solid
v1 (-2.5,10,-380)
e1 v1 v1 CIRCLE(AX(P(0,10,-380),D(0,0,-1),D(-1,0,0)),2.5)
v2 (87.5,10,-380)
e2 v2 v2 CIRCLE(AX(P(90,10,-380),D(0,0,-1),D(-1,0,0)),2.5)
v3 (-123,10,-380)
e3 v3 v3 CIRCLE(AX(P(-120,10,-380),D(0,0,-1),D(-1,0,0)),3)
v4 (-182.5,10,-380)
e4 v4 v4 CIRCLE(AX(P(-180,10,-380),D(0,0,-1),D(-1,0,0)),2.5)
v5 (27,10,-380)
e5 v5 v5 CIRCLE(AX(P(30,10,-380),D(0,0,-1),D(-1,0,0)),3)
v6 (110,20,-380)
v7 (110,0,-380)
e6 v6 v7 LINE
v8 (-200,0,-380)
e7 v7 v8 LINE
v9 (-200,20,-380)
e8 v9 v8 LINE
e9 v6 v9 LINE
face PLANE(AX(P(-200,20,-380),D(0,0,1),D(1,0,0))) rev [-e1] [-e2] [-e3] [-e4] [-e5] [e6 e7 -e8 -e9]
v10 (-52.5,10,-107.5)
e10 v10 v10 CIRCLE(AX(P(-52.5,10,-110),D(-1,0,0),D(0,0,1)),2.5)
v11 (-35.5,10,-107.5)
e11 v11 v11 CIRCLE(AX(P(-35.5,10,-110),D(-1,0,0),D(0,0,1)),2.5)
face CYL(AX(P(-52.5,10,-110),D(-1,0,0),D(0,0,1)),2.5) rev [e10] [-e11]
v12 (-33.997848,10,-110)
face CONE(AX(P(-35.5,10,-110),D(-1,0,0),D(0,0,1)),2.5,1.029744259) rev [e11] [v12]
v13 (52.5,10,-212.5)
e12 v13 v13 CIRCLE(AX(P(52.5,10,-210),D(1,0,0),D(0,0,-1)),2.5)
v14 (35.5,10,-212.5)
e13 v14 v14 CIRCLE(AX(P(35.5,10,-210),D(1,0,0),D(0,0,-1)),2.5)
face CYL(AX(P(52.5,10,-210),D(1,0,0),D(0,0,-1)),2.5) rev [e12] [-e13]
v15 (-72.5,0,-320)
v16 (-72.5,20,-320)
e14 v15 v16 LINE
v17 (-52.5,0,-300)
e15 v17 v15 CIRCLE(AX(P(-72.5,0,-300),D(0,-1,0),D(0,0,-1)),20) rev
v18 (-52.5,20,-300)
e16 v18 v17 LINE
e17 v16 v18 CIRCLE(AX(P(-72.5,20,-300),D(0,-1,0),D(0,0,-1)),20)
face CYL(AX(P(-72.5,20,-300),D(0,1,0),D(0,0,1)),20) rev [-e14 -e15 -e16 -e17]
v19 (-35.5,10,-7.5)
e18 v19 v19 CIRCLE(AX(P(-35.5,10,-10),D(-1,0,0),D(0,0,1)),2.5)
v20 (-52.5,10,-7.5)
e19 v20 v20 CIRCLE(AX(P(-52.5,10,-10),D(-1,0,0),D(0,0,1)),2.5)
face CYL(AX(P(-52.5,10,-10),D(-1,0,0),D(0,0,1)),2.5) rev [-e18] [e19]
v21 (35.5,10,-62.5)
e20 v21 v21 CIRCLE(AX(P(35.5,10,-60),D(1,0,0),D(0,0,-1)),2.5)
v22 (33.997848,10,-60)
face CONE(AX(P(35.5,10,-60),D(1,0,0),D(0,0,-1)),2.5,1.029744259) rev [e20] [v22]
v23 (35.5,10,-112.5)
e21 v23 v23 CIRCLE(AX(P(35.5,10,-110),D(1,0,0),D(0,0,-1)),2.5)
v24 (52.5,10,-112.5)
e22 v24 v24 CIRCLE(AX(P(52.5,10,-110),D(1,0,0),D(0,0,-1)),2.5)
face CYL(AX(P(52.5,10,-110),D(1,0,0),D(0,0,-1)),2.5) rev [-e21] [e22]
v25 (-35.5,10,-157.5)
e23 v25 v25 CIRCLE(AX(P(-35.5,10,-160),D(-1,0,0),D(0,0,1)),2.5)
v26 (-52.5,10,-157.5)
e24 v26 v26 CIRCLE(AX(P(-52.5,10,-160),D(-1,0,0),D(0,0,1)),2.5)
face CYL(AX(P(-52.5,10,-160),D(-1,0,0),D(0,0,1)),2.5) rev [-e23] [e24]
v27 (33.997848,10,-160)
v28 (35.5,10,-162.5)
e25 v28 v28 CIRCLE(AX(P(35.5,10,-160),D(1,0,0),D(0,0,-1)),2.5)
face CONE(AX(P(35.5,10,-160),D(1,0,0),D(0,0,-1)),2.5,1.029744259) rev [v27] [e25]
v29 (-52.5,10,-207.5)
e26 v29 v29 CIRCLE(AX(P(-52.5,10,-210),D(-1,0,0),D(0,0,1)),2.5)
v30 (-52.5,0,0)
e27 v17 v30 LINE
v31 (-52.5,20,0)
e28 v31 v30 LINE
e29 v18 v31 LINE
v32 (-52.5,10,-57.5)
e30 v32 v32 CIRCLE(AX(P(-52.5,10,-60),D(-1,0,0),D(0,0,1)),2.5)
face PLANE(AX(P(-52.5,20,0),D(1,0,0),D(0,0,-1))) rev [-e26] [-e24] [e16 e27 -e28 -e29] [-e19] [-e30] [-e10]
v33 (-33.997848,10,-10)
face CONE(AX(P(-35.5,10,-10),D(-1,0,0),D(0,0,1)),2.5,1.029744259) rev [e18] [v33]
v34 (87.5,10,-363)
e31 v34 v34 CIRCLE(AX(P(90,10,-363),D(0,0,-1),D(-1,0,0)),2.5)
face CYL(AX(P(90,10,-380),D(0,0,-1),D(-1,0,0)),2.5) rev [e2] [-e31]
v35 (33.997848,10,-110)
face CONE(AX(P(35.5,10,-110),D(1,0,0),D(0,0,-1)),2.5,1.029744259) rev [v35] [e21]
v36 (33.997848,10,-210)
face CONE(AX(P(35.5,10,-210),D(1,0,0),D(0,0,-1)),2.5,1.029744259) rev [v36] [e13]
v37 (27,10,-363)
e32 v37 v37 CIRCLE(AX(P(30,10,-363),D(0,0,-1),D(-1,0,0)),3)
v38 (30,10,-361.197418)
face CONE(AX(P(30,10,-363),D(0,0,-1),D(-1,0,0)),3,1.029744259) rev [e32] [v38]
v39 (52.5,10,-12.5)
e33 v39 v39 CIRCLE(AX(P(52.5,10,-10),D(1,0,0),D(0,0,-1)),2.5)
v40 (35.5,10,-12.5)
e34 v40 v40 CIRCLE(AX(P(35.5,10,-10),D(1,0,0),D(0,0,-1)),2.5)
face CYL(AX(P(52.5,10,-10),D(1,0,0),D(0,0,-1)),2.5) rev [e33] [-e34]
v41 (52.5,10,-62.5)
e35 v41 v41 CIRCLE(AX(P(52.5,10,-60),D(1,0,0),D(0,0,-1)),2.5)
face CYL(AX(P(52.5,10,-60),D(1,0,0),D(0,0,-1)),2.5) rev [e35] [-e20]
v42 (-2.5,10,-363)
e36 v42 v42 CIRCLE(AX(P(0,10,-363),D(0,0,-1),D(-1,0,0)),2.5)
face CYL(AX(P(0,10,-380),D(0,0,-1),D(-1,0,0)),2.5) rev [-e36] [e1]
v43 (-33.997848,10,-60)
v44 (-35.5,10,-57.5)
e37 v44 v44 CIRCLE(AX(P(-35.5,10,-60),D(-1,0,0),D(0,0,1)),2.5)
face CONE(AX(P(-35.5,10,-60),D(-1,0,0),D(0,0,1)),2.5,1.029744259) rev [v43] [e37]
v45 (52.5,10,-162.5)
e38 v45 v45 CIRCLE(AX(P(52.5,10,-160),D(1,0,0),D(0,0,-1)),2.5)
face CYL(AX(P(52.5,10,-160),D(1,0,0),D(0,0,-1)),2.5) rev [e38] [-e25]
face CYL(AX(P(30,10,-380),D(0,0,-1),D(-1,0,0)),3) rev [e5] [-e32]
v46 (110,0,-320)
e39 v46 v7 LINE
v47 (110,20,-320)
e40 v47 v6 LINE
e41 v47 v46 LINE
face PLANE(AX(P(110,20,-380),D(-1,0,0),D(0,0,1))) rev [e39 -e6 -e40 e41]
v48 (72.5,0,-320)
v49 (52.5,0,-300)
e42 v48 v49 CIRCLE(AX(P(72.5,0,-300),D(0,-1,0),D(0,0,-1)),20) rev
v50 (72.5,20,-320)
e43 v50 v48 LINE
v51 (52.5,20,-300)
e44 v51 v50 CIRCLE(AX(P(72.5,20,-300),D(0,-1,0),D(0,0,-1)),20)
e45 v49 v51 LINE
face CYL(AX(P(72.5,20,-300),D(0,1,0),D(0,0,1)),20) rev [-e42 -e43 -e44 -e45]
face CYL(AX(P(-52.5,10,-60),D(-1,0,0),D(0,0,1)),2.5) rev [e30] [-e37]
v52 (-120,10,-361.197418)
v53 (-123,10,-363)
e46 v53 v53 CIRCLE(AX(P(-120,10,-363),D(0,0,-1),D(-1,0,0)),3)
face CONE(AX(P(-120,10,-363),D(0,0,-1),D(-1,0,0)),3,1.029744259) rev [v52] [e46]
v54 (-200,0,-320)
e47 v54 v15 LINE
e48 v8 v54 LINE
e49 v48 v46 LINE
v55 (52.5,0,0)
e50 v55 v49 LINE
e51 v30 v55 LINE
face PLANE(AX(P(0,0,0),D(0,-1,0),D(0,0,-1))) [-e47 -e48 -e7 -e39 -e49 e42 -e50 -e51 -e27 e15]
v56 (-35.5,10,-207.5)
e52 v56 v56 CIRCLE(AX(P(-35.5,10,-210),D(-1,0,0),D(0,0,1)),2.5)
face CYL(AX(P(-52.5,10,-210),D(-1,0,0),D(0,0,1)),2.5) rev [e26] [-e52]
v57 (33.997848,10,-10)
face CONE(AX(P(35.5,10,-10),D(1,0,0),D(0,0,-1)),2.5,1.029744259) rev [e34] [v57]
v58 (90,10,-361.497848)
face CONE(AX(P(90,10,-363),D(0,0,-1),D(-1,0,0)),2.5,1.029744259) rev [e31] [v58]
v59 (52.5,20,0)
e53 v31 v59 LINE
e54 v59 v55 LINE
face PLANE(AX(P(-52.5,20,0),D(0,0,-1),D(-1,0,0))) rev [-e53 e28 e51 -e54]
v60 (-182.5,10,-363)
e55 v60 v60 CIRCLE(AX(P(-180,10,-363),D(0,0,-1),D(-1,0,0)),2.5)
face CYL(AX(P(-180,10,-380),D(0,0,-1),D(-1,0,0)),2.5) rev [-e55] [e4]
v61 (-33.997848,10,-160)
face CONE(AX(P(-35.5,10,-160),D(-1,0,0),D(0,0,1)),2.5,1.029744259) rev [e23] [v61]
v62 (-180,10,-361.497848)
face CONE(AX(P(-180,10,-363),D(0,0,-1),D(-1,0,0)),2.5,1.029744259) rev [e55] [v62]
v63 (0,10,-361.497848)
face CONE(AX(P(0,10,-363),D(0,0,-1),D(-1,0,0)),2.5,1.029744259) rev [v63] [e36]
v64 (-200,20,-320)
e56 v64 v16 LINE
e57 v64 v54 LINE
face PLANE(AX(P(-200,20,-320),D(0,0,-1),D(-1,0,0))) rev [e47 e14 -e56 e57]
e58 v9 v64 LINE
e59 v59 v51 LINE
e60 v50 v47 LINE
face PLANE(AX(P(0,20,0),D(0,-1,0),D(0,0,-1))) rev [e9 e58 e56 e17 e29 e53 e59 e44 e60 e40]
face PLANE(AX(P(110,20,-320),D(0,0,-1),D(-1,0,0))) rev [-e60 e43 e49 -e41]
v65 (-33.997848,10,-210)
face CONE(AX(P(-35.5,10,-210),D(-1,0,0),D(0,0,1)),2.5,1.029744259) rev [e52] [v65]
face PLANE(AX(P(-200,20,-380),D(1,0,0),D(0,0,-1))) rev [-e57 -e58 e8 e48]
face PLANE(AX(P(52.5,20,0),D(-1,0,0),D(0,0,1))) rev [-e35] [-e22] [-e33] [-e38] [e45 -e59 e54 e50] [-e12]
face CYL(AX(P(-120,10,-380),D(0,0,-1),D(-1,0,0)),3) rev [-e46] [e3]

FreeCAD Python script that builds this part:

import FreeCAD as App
import Part
import Sketcher

V = App.Vector
Q = App.Units.Quantity


def edges_at(feature, points):
    """Names of the edges that pass closest to the given points."""
    edges = feature.Shape.Edges
    near = lambda p: min(range(len(edges)), key=lambda i: edges[i].distToShape(Part.Vertex(*p))[0])
    return sorted({f"Edge{near(p) + 1}" for p in points})

doc = App.newDocument("Part")
body = doc.addObject("PartDesign::Body", "Body")

sketch1 = doc.addObject("Sketcher::SketchObject", "Sketch")
body.addObject(sketch1)
sketch1.AttachmentSupport = (doc.XZ_Plane, [""])
sketch1.MapMode = "FlatFace"
sketch1.addGeometry([
    Part.LineSegment(V(-52, 0, 0), V(52, 0, 0)),
    Part.LineSegment(V(52, 0, 0), V(52, -320, 0)),
    Part.LineSegment(V(52, -320, 0), V(110, -320, 0)),
    Part.LineSegment(V(110, -320, 0), V(110, -380, 0)),
    Part.LineSegment(V(110, -380, 0), V(-200, -380, 0)),
    Part.LineSegment(V(-200, -380, 0), V(-200, -320, 0)),
    Part.LineSegment(V(-200, -320, 0), V(-52, -320, 0)),
    Part.LineSegment(V(-52, -320, 0), V(-52, 0, 0)),
], False)
sketch1.addConstraint([
    Sketcher.Constraint("Coincident", 0, 2, 1, 1),
    Sketcher.Constraint("Coincident", 1, 2, 2, 1),
    Sketcher.Constraint("Coincident", 2, 2, 3, 1),
    Sketcher.Constraint("Coincident", 3, 2, 4, 1),
    Sketcher.Constraint("Coincident", 4, 2, 5, 1),
    Sketcher.Constraint("Coincident", 5, 2, 6, 1),
    Sketcher.Constraint("Coincident", 6, 2, 7, 1),
    Sketcher.Constraint("Coincident", 7, 2, 0, 1),
    Sketcher.Constraint("Horizontal", 0),
    Sketcher.Constraint("Vertical", 1),
    Sketcher.Constraint("Horizontal", 2),
    Sketcher.Constraint("Vertical", 3),
    Sketcher.Constraint("Horizontal", 4),
    Sketcher.Constraint("Vertical", 5),
    Sketcher.Constraint("Horizontal", 6),
    Sketcher.Constraint("Vertical", 7),
    Sketcher.Constraint("Symmetric", 0, 2, 7, 2, -1, 1),
    Sketcher.Constraint("Horizontal", 2, 2, 5, 2),
    Sketcher.Constraint("DistanceX", 0, 1, 0, 2, Q("105 mm")),
    Sketcher.Constraint("DistanceX", 4, 2, 4, 1, Q("310 mm")),
    Sketcher.Constraint("DistanceY", 1, 2, 1, 1, Q("320 mm")),
    Sketcher.Constraint("DistanceY", 3, 2, 3, 1, Q("60 mm")),
    Sketcher.Constraint("DistanceX", 2, 1, 2, 2, Q("57.5 mm")),
])
pad1 = doc.addObject("PartDesign::Pad", "Pad")
body.addObject(pad1)
pad1.Profile = sketch1
pad1.Length = 20
pad1.Reversed = True

sketch2 = doc.addObject("Sketcher::SketchObject", "Sketch001")
body.addObject(sketch2)
sketch2.AttachmentSupport = (doc.XZ_Plane, [""])
sketch2.MapMode = "FlatFace"
sketch2.AttachmentOffset = App.Placement(V(0, 0, -10), App.Rotation())
sketch2.addGeometry([
    Part.LineSegment(V(34, -10, 0), V(52.5, -10, 0)),
    Part.LineSegment(V(52.5, -10, 0), V(52.5, -12.5, 0)),
    Part.LineSegment(V(52.5, -12.5, 0), V(35.5, -12.5, 0)),
    Part.LineSegment(V(35.5, -12.5, 0), V(34, -10, 0)),
], False)
sketch2.addGeometry(Part.LineSegment(V(52.5, -10, 0), V(34, -10, 0)), True)
sketch2.addConstraint([
    Sketcher.Constraint("Coincident", 0, 2, 1, 1),
    Sketcher.Constraint("Coincident", 1, 2, 2, 1),
    Sketcher.Constraint("Coincident", 2, 2, 3, 1),
    Sketcher.Constraint("Coincident", 3, 2, 0, 1),
    Sketcher.Constraint("Horizontal", 0),
    Sketcher.Constraint("Vertical", 1),
    Sketcher.Constraint("Horizontal", 2),
    Sketcher.Constraint("Horizontal", 4),
    Sketcher.Constraint("Coincident", 4, 1, 0, 2),
    Sketcher.Constraint("Equal", 0, 4),
    Sketcher.Constraint("DistanceX", 2, 2, 2, 1, Q("17 mm")),
    Sketcher.Constraint("Angle", 3, Q("121 deg")),
    Sketcher.Constraint("DistanceY", 1, 2, 1, 1, Q("2.5 mm")),
    Sketcher.Constraint("DistanceY", 0, 2, -1, 1, Q("10 mm")),
    Sketcher.Constraint("DistanceX", -1, 1, 0, 2, Q("52.5 mm")),
])
groove = doc.addObject("PartDesign::Groove", "Groove")
body.addObject(groove)
groove.Profile = sketch2
groove.ReferenceAxis = (sketch2, ["Axis0"])
groove.Angle = 360
doc.recompute()

linearpattern = doc.addObject("PartDesign::LinearPattern", "LinearPattern")
body.addObject(linearpattern)
linearpattern.Originals = [groove]
linearpattern.Direction = (doc.Z_Axis, [""])
linearpattern.Mode = "offset"
linearpattern.Offset = 50
linearpattern.Occurrences = 2
linearpattern.Reversed = True
body.Tip = linearpattern
doc.recompute()

linearpattern2 = doc.addObject("PartDesign::LinearPattern", "LinearPattern001")
body.addObject(linearpattern2)
linearpattern2.Originals = [groove]
linearpattern2.Direction = (doc.Z_Axis, [""])
linearpattern2.Mode = "offset"
linearpattern2.Offset = 100
linearpattern2.Occurrences = 2
linearpattern2.Reversed = True
body.Tip = linearpattern2
doc.recompute()

linearpattern3 = doc.addObject("PartDesign::LinearPattern", "LinearPattern002")
body.addObject(linearpattern3)
linearpattern3.Originals = [groove]
linearpattern3.Direction = (doc.Z_Axis, [""])
linearpattern3.Mode = "offset"
linearpattern3.Offset = 150
linearpattern3.Occurrences = 2
linearpattern3.Reversed = True
body.Tip = linearpattern3
doc.recompute()

datumline = doc.addObject("PartDesign::Line", "DatumLine")
body.addObject(datumline)
datumline.Placement = App.Placement(V(0, 0, 0), App.Rotation(V(0, 0, 1), V(0, 0.242535625, -0.9701425)))
linearpattern4 = doc.addObject("PartDesign::LinearPattern", "LinearPattern003")
body.addObject(linearpattern4)
linearpattern4.Originals = [groove]
linearpattern4.Direction = (datumline, [""])
linearpattern4.Mode = "offset"
linearpattern4.Offset = 206.155281
linearpattern4.Occurrences = 2
body.Tip = linearpattern4
doc.recompute()

linearpattern5 = doc.addObject("PartDesign::LinearPattern", "LinearPattern004")
body.addObject(linearpattern5)
linearpattern5.Originals = [groove]
linearpattern5.Direction = (doc.Z_Axis, [""])
linearpattern5.Mode = "offset"
linearpattern5.Offset = 200
linearpattern5.Occurrences = 2
linearpattern5.Reversed = True
body.Tip = linearpattern5
doc.recompute()

mirrored = doc.addObject("PartDesign::Mirrored", "Mirrored")
body.addObject(mirrored)
mirrored.Originals = [groove]
mirrored.MirrorPlane = (doc.YZ_Plane, [""])
body.Tip = mirrored

sketch3 = doc.addObject("Sketcher::SketchObject", "Sketch002")
body.addObject(sketch3)
sketch3.AttachmentSupport = (doc.XZ_Plane, [""])
sketch3.MapMode = "FlatFace"
sketch3.AttachmentOffset = App.Placement(V(0, 0, -10), App.Rotation())
sketch3.addGeometry([
    Part.LineSegment(V(-52.5, -60, 0), V(-34, -60, 0)),
    Part.LineSegment(V(-34, -60, 0), V(-35.5, -62.5, 0)),
    Part.LineSegment(V(-35.5, -62.5, 0), V(-52.5, -62.5, 0)),
    Part.LineSegment(V(-52.5, -62.5, 0), V(-52.5, -60, 0)),
], False)
sketch3.addGeometry(Part.LineSegment(V(-34, -60, 0), V(-52.5, -60, 0)), True)
sketch3.addConstraint([
    Sketcher.Constraint("Coincident", 0, 2, 1, 1),
    Sketcher.Constraint("Coincident", 1, 2, 2, 1),
    Sketcher.Constraint("Coincident", 2, 2, 3, 1),
    Sketcher.Constraint("Coincident", 3, 2, 0, 1),
    Sketcher.Constraint("Horizontal", 0),
    Sketcher.Constraint("Horizontal", 2),
    Sketcher.Constraint("Vertical", 3),
    Sketcher.Constraint("Horizontal", 4),
    Sketcher.Constraint("Coincident", 4, 1, 0, 2),
    Sketcher.Constraint("Vertical", 2, 2, 4, 2),
    Sketcher.Constraint("DistanceX", 2, 2, 2, 1, Q("17 mm")),
    Sketcher.Constraint("Angle", 1, Q("-121 deg")),
    Sketcher.Constraint("DistanceY", 3, 1, 3, 2, Q("2.5 mm")),
    Sketcher.Constraint("DistanceY", 0, 2, -1, 1, Q("60 mm")),
    Sketcher.Constraint("DistanceX", 1, 2, -1, 1, Q("35.5 mm")),
])
groove2 = doc.addObject("PartDesign::Groove", "Groove001")
body.addObject(groove2)
groove2.Profile = sketch3
groove2.ReferenceAxis = (sketch3, ["Axis0"])
groove2.Angle = 360

sketch4 = doc.addObject("Sketcher::SketchObject", "Sketch003")
body.addObject(sketch4)
sketch4.AttachmentSupport = (doc.XZ_Plane, [""])
sketch4.MapMode = "FlatFace"
sketch4.AttachmentOffset = App.Placement(V(0, 0, -10), App.Rotation())
sketch4.addGeometry([
    Part.LineSegment(V(-52.5, -110, 0), V(-34, -110, 0)),
    Part.LineSegment(V(-34, -110, 0), V(-35.5, -112.5, 0)),
    Part.LineSegment(V(-35.5, -112.5, 0), V(-52.5, -112.5, 0)),
    Part.LineSegment(V(-52.5, -112.5, 0), V(-52.5, -110, 0)),
], False)
sketch4.addGeometry(Part.LineSegment(V(-34, -110, 0), V(-52.5, -110, 0)), True)
sketch4.addConstraint([
    Sketcher.Constraint("Coincident", 0, 2, 1, 1),
    Sketcher.Constraint("Coincident", 1, 2, 2, 1),
    Sketcher.Constraint("Coincident", 2, 2, 3, 1),
    Sketcher.Constraint("Coincident", 3, 2, 0, 1),
    Sketcher.Constraint("Horizontal", 0),
    Sketcher.Constraint("Horizontal", 2),
    Sketcher.Constraint("Vertical", 3),
    Sketcher.Constraint("Horizontal", 4),
    Sketcher.Constraint("Coincident", 4, 1, 0, 2),
    Sketcher.Constraint("Vertical", 2, 2, 4, 2),
    Sketcher.Constraint("DistanceX", 2, 2, 2, 1, Q("17 mm")),
    Sketcher.Constraint("Angle", 1, Q("-121 deg")),
    Sketcher.Constraint("DistanceY", 3, 1, 3, 2, Q("2.5 mm")),
    Sketcher.Constraint("DistanceY", 0, 2, -1, 1, Q("110 mm")),
    Sketcher.Constraint("DistanceX", 1, 2, -1, 1, Q("35.5 mm")),
])
groove3 = doc.addObject("PartDesign::Groove", "Groove002")
body.addObject(groove3)
groove3.Profile = sketch4
groove3.ReferenceAxis = (sketch4, ["Axis0"])
groove3.Angle = 360

sketch5 = doc.addObject("Sketcher::SketchObject", "Sketch004")
body.addObject(sketch5)
sketch5.AttachmentSupport = (doc.XZ_Plane, [""])
sketch5.MapMode = "FlatFace"
sketch5.AttachmentOffset = App.Placement(V(0, 0, -10), App.Rotation())
sketch5.addGeometry([
    Part.LineSegment(V(-52.5, -160, 0), V(-34, -160, 0)),
    Part.LineSegment(V(-34, -160, 0), V(-35.5, -162.5, 0)),
    Part.LineSegment(V(-35.5, -162.5, 0), V(-52.5, -162.5, 0)),
    Part.LineSegment(V(-52.5, -162.5, 0), V(-52.5, -160, 0)),
], False)
sketch5.addGeometry(Part.LineSegment(V(-34, -160, 0), V(-52.5, -160, 0)), True)
sketch5.addConstraint([
    Sketcher.Constraint("Coincident", 0, 2, 1, 1),
    Sketcher.Constraint("Coincident", 1, 2, 2, 1),
    Sketcher.Constraint("Coincident", 2, 2, 3, 1),
    Sketcher.Constraint("Coincident", 3, 2, 0, 1),
    Sketcher.Constraint("Horizontal", 0),
    Sketcher.Constraint("Horizontal", 2),
    Sketcher.Constraint("Vertical", 3),
    Sketcher.Constraint("Horizontal", 4),
    Sketcher.Constraint("Coincident", 4, 1, 0, 2),
    Sketcher.Constraint("Vertical", 2, 2, 4, 2),
    Sketcher.Constraint("DistanceX", 2, 2, 2, 1, Q("17 mm")),
    Sketcher.Constraint("Angle", 1, Q("-121 deg")),
    Sketcher.Constraint("DistanceY", 3, 1, 3, 2, Q("2.5 mm")),
    Sketcher.Constraint("DistanceY", 0, 2, -1, 1, Q("160 mm")),
    Sketcher.Constraint("DistanceX", 1, 2, -1, 1, Q("35.5 mm")),
])
groove4 = doc.addObject("PartDesign::Groove", "Groove003")
body.addObject(groove4)
groove4.Profile = sketch5
groove4.ReferenceAxis = (sketch5, ["Axis0"])
groove4.Angle = 360

sketch6 = doc.addObject("Sketcher::SketchObject", "Sketch005")
body.addObject(sketch6)
sketch6.AttachmentSupport = (doc.XZ_Plane, [""])
sketch6.MapMode = "FlatFace"
sketch6.AttachmentOffset = App.Placement(V(0, 0, -60), App.Rotation())
sketch6.addGeometry([
    Part.LineSegment(V(-52.5, -210, 0), V(-34, -210, 0)),
    Part.LineSegment(V(-34, -210, 0), V(-35.5, -212.5, 0)),
    Part.LineSegment(V(-35.5, -212.5, 0), V(-52.5, -212.5, 0)),
    Part.LineSegment(V(-52.5, -212.5, 0), V(-52.5, -210, 0)),
], False)
sketch6.addGeometry(Part.LineSegment(V(-34, -210, 0), V(-52.5, -210, 0)), True)
sketch6.addConstraint([
    Sketcher.Constraint("Coincident", 0, 2, 1, 1),
    Sketcher.Constraint("Coincident", 1, 2, 2, 1),
    Sketcher.Constraint("Coincident", 2, 2, 3, 1),
    Sketcher.Constraint("Coincident", 3, 2, 0, 1),
    Sketcher.Constraint("Horizontal", 0),
    Sketcher.Constraint("Horizontal", 2),
    Sketcher.Constraint("Vertical", 3),
    Sketcher.Constraint("Horizontal", 4),
    Sketcher.Constraint("Coincident", 4, 1, 0, 2),
    Sketcher.Constraint("Vertical", 2, 2, 4, 2),
    Sketcher.Constraint("DistanceX", 2, 2, 2, 1, Q("17 mm")),
    Sketcher.Constraint("Angle", 1, Q("-121 deg")),
    Sketcher.Constraint("DistanceY", 3, 1, 3, 2, Q("2.5 mm")),
    Sketcher.Constraint("DistanceY", 0, 2, -1, 1, Q("210 mm")),
    Sketcher.Constraint("DistanceX", 1, 2, -1, 1, Q("35.5 mm")),
])
groove5 = doc.addObject("PartDesign::Groove", "Groove004")
body.addObject(groove5)
groove5.Profile = sketch6
groove5.ReferenceAxis = (sketch6, ["Axis0"])
groove5.Angle = 360

sketch7 = doc.addObject("Sketcher::SketchObject", "Sketch006")
body.addObject(sketch7)
sketch7.AttachmentSupport = (doc.XZ_Plane, [""])
sketch7.MapMode = "FlatFace"
sketch7.AttachmentOffset = App.Placement(V(0, 0, -10), App.Rotation())
sketch7.addGeometry([
    Part.LineSegment(V(-52.5, -210, 0), V(-34, -210, 0)),
    Part.LineSegment(V(-34, -210, 0), V(-35.5, -212.5, 0)),
    Part.LineSegment(V(-35.5, -212.5, 0), V(-52.5, -212.5, 0)),
    Part.LineSegment(V(-52.5, -212.5, 0), V(-52.5, -210, 0)),
], False)
sketch7.addGeometry(Part.LineSegment(V(-34, -210, 0), V(-52.5, -210, 0)), True)
sketch7.addConstraint([
    Sketcher.Constraint("Coincident", 0, 2, 1, 1),
    Sketcher.Constraint("Coincident", 1, 2, 2, 1),
    Sketcher.Constraint("Coincident", 2, 2, 3, 1),
    Sketcher.Constraint("Coincident", 3, 2, 0, 1),
    Sketcher.Constraint("Horizontal", 0),
    Sketcher.Constraint("Horizontal", 2),
    Sketcher.Constraint("Vertical", 3),
    Sketcher.Constraint("Horizontal", 4),
    Sketcher.Constraint("Coincident", 4, 1, 0, 2),
    Sketcher.Constraint("Vertical", 2, 2, 4, 2),
    Sketcher.Constraint("DistanceX", 2, 2, 2, 1, Q("17 mm")),
    Sketcher.Constraint("Angle", 1, Q("-121 deg")),
    Sketcher.Constraint("DistanceY", 3, 1, 3, 2, Q("2.5 mm")),
    Sketcher.Constraint("DistanceY", 0, 2, -1, 1, Q("210 mm")),
    Sketcher.Constraint("DistanceX", 1, 2, -1, 1, Q("35.5 mm")),
])
groove6 = doc.addObject("PartDesign::Groove", "Groove005")
body.addObject(groove6)
groove6.Profile = sketch7
groove6.ReferenceAxis = (sketch7, ["Axis0"])
groove6.Angle = 360

sketch8 = doc.addObject("Sketcher::SketchObject", "Sketch007")
body.addObject(sketch8)
sketch8.AttachmentSupport = (doc.XY_Plane, [""])
sketch8.MapMode = "FlatFace"
sketch8.AttachmentOffset = App.Placement(V(0, 0, -380), App.Rotation())
sketch8.addGeometry([
    Part.Circle(V(90, 10, 0), V(0, 0, 1), 2.5),
    Part.Circle(V(-180, 10, 0), V(0, 0, 1), 2.5),
    Part.Circle(V(0, 10, 0), V(0, 0, 1), 2.5),
], False)
sketch8.addConstraint([
    Sketcher.Constraint("Equal", 0, 1),
    Sketcher.Constraint("Equal", 1, 2),
    Sketcher.Constraint("PointOnObject", 2, 3, -2),
    Sketcher.Constraint("Horizontal", 0, 3, 1, 3),
    Sketcher.Constraint("Horizontal", 1, 3, 2, 3),
    Sketcher.Constraint("Diameter", 0, Q("5 mm")),
    Sketcher.Constraint("DistanceX", -1, 1, 0, 3, Q("90 mm")),
    Sketcher.Constraint("DistanceY", -1, 1, 0, 3, Q("10 mm")),
    Sketcher.Constraint("DistanceX", 1, 3, -1, 1, Q("180 mm")),
])
doc.recompute()
hole = doc.addObject("PartDesign::Hole", "Hole")
body.addObject(hole)
hole.Profile = sketch8
hole.ThreadType = "None"
hole.Diameter = 5
hole.DepthType = "Dimension"
hole.Depth = 17
hole.DrillPoint = "Angled"
hole.DrillPointAngle = 118
hole.Reversed = True
doc.recompute()

fillet = doc.addObject("PartDesign::Fillet", "Fillet")
body.addObject(fillet)
fillet.Base = (hole, edges_at(hole, [(-52.5, 10, -320), (52.5, 10, -320)]))
fillet.Radius = 20

sketch9 = doc.addObject("Sketcher::SketchObject", "Sketch008")
body.addObject(sketch9)
sketch9.AttachmentSupport = (doc.XY_Plane, [""])
sketch9.MapMode = "FlatFace"
sketch9.AttachmentOffset = App.Placement(V(0, 0, -380), App.Rotation())
sketch9.addGeometry([
    Part.Circle(V(-120, 10, 0), V(0, 0, 1), 3),
    Part.Circle(V(30, 10, 0), V(0, 0, 1), 3),
], False)
sketch9.addConstraint([
    Sketcher.Constraint("Equal", 0, 1),
    Sketcher.Constraint("Horizontal", 0, 3, 1, 3),
    Sketcher.Constraint("Diameter", 0, Q("6 mm")),
    Sketcher.Constraint("DistanceX", 0, 3, -1, 1, Q("120 mm")),
    Sketcher.Constraint("DistanceY", -1, 1, 0, 3, Q("10 mm")),
    Sketcher.Constraint("DistanceX", -1, 1, 1, 3, Q("30 mm")),
])
doc.recompute()
hole2 = doc.addObject("PartDesign::Hole", "Hole001")
body.addObject(hole2)
hole2.Profile = sketch9
hole2.ThreadType = "None"
hole2.Diameter = 6
hole2.DepthType = "Dimension"
hole2.Depth = 17
hole2.DrillPoint = "Angled"
hole2.DrillPointAngle = 118
hole2.Reversed = True

doc.recompute()
